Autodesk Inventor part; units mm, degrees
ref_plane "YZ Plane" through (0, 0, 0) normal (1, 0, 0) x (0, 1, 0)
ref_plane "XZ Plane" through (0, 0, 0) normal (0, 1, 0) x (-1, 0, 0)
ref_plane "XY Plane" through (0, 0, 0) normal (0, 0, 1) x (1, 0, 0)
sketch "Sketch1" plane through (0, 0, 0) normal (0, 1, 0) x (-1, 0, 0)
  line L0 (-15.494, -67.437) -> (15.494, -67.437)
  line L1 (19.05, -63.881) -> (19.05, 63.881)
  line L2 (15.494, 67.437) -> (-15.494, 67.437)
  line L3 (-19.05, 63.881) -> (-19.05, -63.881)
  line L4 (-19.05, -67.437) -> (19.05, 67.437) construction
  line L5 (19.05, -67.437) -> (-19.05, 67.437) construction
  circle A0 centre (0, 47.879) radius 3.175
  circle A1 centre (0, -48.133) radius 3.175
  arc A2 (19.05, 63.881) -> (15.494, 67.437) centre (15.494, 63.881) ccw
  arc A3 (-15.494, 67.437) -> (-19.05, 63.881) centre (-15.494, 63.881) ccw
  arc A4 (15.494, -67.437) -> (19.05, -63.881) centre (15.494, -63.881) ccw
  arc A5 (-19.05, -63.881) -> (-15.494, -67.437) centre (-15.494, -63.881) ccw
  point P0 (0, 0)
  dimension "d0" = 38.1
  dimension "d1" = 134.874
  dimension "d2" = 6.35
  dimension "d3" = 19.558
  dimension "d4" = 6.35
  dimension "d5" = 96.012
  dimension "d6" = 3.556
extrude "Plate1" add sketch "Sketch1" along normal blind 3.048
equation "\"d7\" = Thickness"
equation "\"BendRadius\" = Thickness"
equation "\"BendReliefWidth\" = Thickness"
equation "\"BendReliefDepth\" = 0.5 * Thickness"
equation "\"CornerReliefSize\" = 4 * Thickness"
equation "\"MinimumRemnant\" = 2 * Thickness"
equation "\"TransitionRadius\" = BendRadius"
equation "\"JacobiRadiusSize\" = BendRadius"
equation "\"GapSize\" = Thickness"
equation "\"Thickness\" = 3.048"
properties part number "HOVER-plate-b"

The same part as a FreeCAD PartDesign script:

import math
import FreeCAD as App
import Part
import Sketcher

V = App.Vector
Q = App.Units.Quantity

doc = App.newDocument("Part")
body = doc.addObject("PartDesign::Body", "Body")

# Sketch on XZ plane
sketch1 = body.newObject("Sketcher::SketchObject", "Sketch")
sketch1.AttachmentSupport = (doc.getObject("XZ_Plane"), [""])
sketch1.MapMode = "FlatFace"
sketch1.addGeometry([
    Part.ArcOfCircle(Part.Circle(V(15.5, -63.9, 0), V(0, 0, 1), 3.6), math.radians(-90), math.radians(0)),  # 0
    Part.LineSegment(V(15.5, -67.4, 0), V(-15.5, -67.4, 0)),  # 1
    Part.ArcOfCircle(Part.Circle(V(-15.5, -63.9, 0), V(0, 0, 1), 3.6), math.radians(180), math.radians(270)),  # 2
    Part.LineSegment(V(-19.1, -63.9, 0), V(-19.1, 63.9, 0)),  # 3
    Part.ArcOfCircle(Part.Circle(V(-15.5, 63.9, 0), V(0, 0, 1), 3.6), math.radians(90), math.radians(180)),  # 4
    Part.LineSegment(V(-15.5, 67.4, 0), V(15.5, 67.4, 0)),  # 5
    Part.ArcOfCircle(Part.Circle(V(15.5, 63.9, 0), V(0, 0, 1), 3.6), math.radians(0), math.radians(90)),  # 6
    Part.LineSegment(V(19.1, 63.9, 0), V(19.1, -63.9, 0)),  # 7
    Part.Circle(V(0, -48.1, 0), V(0, 0, 1), 3.2),  # 8
    Part.Circle(V(0, 47.9, 0), V(0, 0, 1), 3.2),  # 9
], False)
sketch1.addConstraint([
    Sketcher.Constraint("Tangent", 0, 1, 1, 1),
    Sketcher.Constraint("Tangent", 1, 2, 2, 2),
    Sketcher.Constraint("Tangent", 2, 1, 3, 1),
    Sketcher.Constraint("Tangent", 3, 2, 4, 2),
    Sketcher.Constraint("Tangent", 4, 1, 5, 1),
    Sketcher.Constraint("Tangent", 5, 2, 6, 2),
    Sketcher.Constraint("Tangent", 6, 1, 7, 1),
    Sketcher.Constraint("Tangent", 7, 2, 0, 2),
    Sketcher.Constraint("Horizontal", 1),
    Sketcher.Constraint("Vertical", 3),
    Sketcher.Constraint("Horizontal", 5),
    Sketcher.Constraint("Vertical", 7),
    Sketcher.Constraint("Equal", 0, 2),
    Sketcher.Constraint("Equal", 2, 4),
    Sketcher.Constraint("Equal", 4, 6),
    Sketcher.Constraint("Equal", 8, 9),
    Sketcher.Constraint("Symmetric", 0, 3, 4, 3, -1, 1),
    Sketcher.Constraint("PointOnObject", 8, 3, -2),
    Sketcher.Constraint("PointOnObject", 9, 3, -2),
    Sketcher.Constraint("Diameter", 8, Q("0.25 in")),
    Sketcher.Constraint("Radius", 0, Q("0.14 in")),
    Sketcher.Constraint("DistanceY", 8, 3, 9, 3, Q("3.78 in")),
    Sketcher.Constraint("DistanceY", 9, 3, 4, 1, Q("0.77 in")),
    Sketcher.Constraint("DistanceX", 1, 2, 1, 1, Q("1.22 in")),
    Sketcher.Constraint("DistanceY", 3, 1, 3, 2, Q("5.03 in")),
])
pad1 = body.newObject("PartDesign::Pad", "Pad")
pad1.Profile = sketch1
pad1.Length = Q("0.12 in")
pad1.Reversed = True

doc.recompute()
